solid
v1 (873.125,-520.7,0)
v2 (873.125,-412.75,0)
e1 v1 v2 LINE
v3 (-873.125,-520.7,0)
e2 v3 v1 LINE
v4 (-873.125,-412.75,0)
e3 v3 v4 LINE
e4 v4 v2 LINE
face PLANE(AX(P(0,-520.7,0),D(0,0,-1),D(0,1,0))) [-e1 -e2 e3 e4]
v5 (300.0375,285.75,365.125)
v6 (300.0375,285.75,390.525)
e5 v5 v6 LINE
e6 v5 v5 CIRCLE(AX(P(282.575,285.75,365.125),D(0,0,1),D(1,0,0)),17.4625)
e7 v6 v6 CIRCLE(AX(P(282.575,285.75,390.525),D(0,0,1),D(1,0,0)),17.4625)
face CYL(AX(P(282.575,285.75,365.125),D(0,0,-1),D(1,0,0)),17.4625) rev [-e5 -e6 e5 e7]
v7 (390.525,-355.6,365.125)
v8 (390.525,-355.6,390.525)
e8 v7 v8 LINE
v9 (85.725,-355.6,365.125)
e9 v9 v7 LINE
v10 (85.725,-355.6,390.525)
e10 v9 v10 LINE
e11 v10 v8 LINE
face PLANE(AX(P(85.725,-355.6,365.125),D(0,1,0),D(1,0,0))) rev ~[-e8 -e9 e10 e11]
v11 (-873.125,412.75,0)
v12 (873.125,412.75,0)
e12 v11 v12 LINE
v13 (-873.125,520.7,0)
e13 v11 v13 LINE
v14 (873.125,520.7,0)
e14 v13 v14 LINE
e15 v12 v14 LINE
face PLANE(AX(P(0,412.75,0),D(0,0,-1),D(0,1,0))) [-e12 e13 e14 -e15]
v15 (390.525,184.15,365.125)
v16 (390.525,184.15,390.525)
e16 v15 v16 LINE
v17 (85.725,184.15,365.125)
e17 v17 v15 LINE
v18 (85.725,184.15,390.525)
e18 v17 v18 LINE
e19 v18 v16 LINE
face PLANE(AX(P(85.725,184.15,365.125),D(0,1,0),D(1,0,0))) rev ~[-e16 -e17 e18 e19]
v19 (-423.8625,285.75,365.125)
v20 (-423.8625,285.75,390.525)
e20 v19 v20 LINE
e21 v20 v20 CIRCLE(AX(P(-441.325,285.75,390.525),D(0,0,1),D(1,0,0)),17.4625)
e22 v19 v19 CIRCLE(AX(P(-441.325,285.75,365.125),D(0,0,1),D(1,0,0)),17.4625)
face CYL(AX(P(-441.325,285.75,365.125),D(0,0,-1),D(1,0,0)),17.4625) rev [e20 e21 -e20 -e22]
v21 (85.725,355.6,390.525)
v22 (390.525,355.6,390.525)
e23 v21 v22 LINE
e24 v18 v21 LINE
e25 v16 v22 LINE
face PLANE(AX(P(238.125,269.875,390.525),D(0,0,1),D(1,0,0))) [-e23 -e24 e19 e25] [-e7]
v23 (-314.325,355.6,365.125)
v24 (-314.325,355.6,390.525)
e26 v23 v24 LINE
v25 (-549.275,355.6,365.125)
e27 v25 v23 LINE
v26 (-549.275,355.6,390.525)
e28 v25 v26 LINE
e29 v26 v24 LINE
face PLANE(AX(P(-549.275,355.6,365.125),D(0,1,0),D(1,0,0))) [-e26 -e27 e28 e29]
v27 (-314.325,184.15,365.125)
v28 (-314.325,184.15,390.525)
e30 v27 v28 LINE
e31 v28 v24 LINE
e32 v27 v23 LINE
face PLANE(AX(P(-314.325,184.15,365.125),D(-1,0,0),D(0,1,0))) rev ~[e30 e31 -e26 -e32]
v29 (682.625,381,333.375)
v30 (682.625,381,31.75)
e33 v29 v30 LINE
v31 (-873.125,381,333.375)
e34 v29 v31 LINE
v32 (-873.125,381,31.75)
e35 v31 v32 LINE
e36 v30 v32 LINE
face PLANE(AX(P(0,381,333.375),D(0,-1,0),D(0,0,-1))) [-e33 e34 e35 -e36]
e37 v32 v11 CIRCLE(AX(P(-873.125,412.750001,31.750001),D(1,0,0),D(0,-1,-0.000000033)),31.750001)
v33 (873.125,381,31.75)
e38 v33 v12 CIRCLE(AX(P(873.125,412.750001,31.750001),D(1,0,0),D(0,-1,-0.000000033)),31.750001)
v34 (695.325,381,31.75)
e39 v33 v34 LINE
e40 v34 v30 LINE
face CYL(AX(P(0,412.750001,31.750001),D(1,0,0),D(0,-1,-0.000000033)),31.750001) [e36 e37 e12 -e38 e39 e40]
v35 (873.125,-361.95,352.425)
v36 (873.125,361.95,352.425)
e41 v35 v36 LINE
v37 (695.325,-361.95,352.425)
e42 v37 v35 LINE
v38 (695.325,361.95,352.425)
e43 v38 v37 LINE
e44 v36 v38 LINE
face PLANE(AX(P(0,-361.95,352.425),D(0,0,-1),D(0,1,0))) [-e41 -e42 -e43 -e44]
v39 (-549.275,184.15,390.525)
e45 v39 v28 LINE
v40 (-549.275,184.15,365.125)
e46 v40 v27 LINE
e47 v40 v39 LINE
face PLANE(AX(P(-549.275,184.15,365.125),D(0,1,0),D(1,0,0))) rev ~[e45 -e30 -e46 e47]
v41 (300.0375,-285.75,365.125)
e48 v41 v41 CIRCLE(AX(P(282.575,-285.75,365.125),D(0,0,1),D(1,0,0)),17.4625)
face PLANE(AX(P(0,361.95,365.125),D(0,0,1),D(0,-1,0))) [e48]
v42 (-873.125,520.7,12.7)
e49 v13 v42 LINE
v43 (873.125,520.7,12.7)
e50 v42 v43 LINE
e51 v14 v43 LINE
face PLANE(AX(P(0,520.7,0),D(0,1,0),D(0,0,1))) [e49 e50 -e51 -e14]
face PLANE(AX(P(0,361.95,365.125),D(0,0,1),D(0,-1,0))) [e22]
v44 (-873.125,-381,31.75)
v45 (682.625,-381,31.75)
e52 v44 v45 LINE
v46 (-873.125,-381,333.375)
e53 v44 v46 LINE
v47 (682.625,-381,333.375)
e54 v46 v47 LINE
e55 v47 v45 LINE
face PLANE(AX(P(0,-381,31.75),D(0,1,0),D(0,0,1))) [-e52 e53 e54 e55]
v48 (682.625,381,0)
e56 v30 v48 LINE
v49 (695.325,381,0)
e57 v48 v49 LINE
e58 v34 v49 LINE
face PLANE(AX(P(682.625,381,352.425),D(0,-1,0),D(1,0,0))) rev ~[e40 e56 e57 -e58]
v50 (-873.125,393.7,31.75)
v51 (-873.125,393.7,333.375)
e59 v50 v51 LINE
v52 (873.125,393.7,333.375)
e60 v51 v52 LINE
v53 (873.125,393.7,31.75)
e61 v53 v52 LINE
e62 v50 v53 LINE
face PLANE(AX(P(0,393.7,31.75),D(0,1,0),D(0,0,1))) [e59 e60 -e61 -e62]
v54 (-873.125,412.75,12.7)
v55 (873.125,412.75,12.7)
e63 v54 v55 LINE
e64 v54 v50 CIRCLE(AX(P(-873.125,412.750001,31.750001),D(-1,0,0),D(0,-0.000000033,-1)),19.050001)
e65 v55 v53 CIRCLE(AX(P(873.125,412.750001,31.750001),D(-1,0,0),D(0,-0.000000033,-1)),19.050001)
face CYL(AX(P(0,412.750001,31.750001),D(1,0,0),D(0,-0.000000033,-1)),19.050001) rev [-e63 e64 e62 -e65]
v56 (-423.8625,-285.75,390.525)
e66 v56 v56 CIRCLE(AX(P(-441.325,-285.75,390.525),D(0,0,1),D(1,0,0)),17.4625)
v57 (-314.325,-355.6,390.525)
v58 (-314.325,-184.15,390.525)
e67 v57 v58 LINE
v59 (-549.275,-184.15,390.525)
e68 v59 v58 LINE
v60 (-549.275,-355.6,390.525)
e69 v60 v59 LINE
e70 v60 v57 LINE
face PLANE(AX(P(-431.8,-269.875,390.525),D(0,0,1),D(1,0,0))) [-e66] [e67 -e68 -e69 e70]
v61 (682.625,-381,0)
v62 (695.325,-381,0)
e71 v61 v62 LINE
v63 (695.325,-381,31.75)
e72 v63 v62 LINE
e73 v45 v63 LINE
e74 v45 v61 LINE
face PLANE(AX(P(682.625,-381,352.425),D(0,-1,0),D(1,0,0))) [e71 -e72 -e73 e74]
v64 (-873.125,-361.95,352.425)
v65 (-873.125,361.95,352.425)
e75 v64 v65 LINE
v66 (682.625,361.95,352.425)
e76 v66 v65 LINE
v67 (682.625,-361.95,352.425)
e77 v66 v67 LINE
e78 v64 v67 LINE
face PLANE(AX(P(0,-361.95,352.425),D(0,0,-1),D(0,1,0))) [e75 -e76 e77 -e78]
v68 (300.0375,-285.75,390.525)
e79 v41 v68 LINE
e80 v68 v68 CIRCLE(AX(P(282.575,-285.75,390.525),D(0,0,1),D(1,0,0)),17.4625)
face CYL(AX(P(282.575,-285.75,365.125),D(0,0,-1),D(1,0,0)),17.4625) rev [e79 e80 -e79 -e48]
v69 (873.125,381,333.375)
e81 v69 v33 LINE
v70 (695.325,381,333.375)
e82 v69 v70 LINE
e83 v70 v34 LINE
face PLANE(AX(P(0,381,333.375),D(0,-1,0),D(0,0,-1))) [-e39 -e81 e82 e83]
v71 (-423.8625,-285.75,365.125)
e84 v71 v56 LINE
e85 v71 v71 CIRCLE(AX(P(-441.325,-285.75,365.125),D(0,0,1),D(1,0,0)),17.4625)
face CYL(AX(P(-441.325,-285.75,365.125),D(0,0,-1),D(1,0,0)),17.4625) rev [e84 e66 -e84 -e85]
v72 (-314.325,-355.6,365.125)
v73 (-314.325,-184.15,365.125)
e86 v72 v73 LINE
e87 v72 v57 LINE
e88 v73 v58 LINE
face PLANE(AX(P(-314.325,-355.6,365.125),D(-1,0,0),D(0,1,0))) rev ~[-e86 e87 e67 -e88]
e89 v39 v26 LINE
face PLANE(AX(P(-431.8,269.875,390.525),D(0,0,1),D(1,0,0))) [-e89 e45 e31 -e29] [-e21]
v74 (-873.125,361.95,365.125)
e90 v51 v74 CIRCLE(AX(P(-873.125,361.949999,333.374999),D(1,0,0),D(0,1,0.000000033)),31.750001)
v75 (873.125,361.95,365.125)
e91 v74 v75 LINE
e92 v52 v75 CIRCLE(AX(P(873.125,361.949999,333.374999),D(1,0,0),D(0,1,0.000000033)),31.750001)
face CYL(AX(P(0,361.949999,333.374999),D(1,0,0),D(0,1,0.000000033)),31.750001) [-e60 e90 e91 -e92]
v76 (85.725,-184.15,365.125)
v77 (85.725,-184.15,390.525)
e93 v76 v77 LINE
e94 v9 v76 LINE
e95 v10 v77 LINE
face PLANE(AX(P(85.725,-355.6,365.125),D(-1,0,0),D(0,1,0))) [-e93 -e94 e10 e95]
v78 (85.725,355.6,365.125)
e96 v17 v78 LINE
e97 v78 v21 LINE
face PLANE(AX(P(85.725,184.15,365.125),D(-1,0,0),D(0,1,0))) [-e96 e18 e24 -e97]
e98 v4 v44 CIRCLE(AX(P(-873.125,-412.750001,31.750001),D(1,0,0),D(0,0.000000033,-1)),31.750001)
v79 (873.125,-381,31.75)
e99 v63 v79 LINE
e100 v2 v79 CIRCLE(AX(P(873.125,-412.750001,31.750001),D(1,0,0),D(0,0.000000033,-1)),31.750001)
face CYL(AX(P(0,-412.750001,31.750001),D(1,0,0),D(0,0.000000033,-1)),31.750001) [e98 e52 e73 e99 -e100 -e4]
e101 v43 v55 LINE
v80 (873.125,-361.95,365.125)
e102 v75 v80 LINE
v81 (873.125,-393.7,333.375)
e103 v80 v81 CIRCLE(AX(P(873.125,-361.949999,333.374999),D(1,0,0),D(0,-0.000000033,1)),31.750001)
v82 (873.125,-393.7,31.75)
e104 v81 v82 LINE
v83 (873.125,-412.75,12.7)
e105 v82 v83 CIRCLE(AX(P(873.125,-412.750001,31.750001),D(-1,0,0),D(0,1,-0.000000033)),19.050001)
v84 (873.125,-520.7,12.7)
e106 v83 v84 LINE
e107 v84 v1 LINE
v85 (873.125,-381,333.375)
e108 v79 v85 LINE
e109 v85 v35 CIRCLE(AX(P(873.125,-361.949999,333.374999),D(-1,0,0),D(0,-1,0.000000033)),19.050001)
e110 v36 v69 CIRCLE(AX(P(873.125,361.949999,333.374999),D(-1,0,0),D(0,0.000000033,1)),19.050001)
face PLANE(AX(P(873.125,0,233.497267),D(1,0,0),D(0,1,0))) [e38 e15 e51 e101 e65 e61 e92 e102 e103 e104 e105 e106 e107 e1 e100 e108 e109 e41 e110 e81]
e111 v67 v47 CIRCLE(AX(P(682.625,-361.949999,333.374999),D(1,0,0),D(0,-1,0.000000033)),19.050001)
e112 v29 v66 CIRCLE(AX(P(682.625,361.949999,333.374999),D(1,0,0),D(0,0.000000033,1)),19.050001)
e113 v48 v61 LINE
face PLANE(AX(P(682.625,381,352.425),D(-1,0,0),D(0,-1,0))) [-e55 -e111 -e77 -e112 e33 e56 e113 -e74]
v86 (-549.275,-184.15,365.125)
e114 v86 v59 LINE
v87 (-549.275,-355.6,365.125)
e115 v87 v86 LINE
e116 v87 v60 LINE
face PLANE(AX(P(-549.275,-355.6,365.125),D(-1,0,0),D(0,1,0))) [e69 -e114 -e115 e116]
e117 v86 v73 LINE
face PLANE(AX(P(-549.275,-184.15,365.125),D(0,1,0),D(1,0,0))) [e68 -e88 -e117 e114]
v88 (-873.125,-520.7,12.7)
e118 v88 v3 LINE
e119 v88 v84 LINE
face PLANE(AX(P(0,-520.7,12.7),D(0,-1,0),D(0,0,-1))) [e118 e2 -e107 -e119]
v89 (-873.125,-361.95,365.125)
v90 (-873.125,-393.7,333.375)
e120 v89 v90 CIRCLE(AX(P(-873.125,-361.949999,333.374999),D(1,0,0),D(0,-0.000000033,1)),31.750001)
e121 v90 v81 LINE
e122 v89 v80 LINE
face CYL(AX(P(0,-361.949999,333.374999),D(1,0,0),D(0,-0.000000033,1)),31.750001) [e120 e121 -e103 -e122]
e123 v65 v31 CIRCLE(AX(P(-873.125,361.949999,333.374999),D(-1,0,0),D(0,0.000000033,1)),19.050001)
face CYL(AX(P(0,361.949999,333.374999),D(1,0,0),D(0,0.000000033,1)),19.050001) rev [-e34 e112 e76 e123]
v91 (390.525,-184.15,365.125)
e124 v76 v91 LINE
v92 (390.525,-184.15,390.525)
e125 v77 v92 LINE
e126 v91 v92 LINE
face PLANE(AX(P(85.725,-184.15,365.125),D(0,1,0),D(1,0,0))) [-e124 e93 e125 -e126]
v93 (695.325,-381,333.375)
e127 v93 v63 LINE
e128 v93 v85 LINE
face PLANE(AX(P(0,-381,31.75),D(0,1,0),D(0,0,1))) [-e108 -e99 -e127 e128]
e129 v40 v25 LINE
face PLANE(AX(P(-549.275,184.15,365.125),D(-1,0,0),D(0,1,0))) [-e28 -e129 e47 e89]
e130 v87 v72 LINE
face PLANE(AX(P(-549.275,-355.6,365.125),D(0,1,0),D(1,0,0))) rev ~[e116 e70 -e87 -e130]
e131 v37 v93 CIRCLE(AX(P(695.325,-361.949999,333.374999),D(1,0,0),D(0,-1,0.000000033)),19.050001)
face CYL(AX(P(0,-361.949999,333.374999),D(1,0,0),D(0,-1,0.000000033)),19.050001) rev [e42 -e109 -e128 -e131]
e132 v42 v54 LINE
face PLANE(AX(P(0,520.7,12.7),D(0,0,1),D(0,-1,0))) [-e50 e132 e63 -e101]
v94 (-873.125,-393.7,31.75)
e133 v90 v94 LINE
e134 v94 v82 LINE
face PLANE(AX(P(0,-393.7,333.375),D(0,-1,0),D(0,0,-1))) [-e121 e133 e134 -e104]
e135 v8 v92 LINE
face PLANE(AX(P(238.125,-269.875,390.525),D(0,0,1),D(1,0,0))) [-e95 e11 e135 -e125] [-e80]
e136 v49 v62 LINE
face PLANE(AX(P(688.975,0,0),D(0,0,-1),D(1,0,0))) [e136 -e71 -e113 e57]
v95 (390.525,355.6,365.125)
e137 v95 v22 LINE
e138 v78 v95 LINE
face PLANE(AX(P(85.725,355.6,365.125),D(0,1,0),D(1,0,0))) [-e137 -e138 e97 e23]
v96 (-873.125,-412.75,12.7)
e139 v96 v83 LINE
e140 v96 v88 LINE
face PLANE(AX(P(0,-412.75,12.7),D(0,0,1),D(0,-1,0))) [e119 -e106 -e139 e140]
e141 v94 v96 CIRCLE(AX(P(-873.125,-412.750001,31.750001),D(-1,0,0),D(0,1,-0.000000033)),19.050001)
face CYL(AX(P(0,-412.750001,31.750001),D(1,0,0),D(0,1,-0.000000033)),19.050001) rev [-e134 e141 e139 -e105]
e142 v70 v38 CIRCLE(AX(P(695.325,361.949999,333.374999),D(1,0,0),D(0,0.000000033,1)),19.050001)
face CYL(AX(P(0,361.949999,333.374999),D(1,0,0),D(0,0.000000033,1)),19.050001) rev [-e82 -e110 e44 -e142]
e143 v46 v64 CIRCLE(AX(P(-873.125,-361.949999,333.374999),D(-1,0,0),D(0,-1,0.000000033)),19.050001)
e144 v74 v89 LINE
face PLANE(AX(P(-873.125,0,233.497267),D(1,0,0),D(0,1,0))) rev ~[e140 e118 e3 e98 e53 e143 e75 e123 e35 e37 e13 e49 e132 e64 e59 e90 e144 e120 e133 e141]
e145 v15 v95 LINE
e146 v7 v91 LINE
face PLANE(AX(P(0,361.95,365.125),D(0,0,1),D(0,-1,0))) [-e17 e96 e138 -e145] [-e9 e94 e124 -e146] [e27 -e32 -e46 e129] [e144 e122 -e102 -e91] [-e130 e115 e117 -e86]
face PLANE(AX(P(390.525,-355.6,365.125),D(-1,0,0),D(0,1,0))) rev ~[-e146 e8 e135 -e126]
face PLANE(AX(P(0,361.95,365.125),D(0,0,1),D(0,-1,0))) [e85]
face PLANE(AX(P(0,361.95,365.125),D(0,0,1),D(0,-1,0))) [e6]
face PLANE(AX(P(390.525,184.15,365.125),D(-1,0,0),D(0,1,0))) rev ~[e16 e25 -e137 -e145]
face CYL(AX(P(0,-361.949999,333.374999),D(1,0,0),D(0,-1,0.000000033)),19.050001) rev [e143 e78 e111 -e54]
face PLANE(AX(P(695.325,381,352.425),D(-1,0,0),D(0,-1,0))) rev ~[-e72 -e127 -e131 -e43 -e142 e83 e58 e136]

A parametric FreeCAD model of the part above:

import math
import FreeCAD as App
import Part
import Sketcher
Q = App.Units.Quantity

doc = App.newDocument("Part")
body = doc.addObject("PartDesign::Body", "Body")

sketch1 = body.newObject("Sketcher::SketchObject", "Sketch")
sketch1.AttachmentSupport = (doc.getObject("YZ_Plane"), [""])
sketch1.MapMode = "FlatFace"
sketch1.addGeometry([
    Part.ArcOfCircle(Part.Circle(App.Vector(413, 32, 0), App.Vector(0, 0, 1), 32), math.radians(-180), math.radians(-90)),
    Part.LineSegment(App.Vector(413, 0, 0), App.Vector(521, 0, 0)),
    Part.LineSegment(App.Vector(521, 0, 0), App.Vector(521, 13, 0)),
    Part.LineSegment(App.Vector(521, 13, 0), App.Vector(413, 13, 0)),
    Part.ArcOfCircle(Part.Circle(App.Vector(413, 32, 0), App.Vector(0, 0, 1), 19), math.radians(-180), math.radians(-90)),
    Part.LineSegment(App.Vector(394, 32, 0), App.Vector(394, 333, 0)),
    Part.ArcOfCircle(Part.Circle(App.Vector(362, 333, 0), App.Vector(0, 0, 1), 32), math.radians(0), math.radians(90)),
    Part.LineSegment(App.Vector(362, 365, 0), App.Vector(-362, 365, 0)),
    Part.ArcOfCircle(Part.Circle(App.Vector(-362, 333, 0), App.Vector(0, 0, 1), 32), math.radians(90), math.radians(180)),
    Part.LineSegment(App.Vector(-394, 333, 0), App.Vector(-394, 32, 0)),
    Part.ArcOfCircle(Part.Circle(App.Vector(-413, 32, 0), App.Vector(0, 0, 1), 19), math.radians(-90), math.radians(0)),
    Part.LineSegment(App.Vector(-413, 13, 0), App.Vector(-521, 13, 0)),
    Part.LineSegment(App.Vector(-521, 13, 0), App.Vector(-521, 0, 0)),
    Part.LineSegment(App.Vector(-521, 0, 0), App.Vector(-413, 0, 0)),
    Part.ArcOfCircle(Part.Circle(App.Vector(-413, 32, 0), App.Vector(0, 0, 1), 32), math.radians(-90), math.radians(0)),
    Part.LineSegment(App.Vector(-381, 32, 0), App.Vector(-381, 333, 0)),
    Part.ArcOfCircle(Part.Circle(App.Vector(-362, 333, 0), App.Vector(0, 0, 1), 19), math.radians(90), math.radians(180)),
    Part.LineSegment(App.Vector(-362, 352, 0), App.Vector(362, 352, 0)),
    Part.ArcOfCircle(Part.Circle(App.Vector(362, 333, 0), App.Vector(0, 0, 1), 19), math.radians(0), math.radians(90)),
    Part.LineSegment(App.Vector(381, 333, 0), App.Vector(381, 32, 0)),
], False)
sketch1.addConstraint([
    Sketcher.Constraint("Tangent", 0, 2, 1, 1),
    Sketcher.Constraint("Coincident", 1, 2, 2, 1),
    Sketcher.Constraint("Coincident", 2, 2, 3, 1),
    Sketcher.Constraint("Tangent", 3, 2, 4, 2),
    Sketcher.Constraint("Tangent", 4, 1, 5, 1),
    Sketcher.Constraint("Tangent", 5, 2, 6, 1),
    Sketcher.Constraint("Tangent", 6, 2, 7, 1),
    Sketcher.Constraint("Tangent", 7, 2, 8, 1),
    Sketcher.Constraint("Tangent", 8, 2, 9, 1),
    Sketcher.Constraint("Tangent", 9, 2, 10, 2),
    Sketcher.Constraint("Tangent", 10, 1, 11, 1),
    Sketcher.Constraint("Coincident", 11, 2, 12, 1),
    Sketcher.Constraint("Coincident", 12, 2, 13, 1),
    Sketcher.Constraint("Tangent", 13, 2, 14, 1),
    Sketcher.Constraint("Tangent", 14, 2, 15, 1),
    Sketcher.Constraint("Tangent", 15, 2, 16, 2),
    Sketcher.Constraint("Tangent", 16, 1, 17, 1),
    Sketcher.Constraint("Tangent", 17, 2, 18, 2),
    Sketcher.Constraint("Tangent", 18, 1, 19, 1),
    Sketcher.Constraint("Tangent", 19, 2, 0, 1),
    Sketcher.Constraint("Horizontal", 1),
    Sketcher.Constraint("Vertical", 2),
    Sketcher.Constraint("Horizontal", 3),
    Sketcher.Constraint("Vertical", 5),
    Sketcher.Constraint("Horizontal", 7),
    Sketcher.Constraint("Vertical", 9),
    Sketcher.Constraint("Horizontal", 11),
    Sketcher.Constraint("Vertical", 12),
    Sketcher.Constraint("Horizontal", 13),
    Sketcher.Constraint("Vertical", 15),
    Sketcher.Constraint("Horizontal", 17),
    Sketcher.Constraint("Vertical", 19),
    Sketcher.Constraint("Coincident", 4, 3, 0, 3),
    Sketcher.Constraint("Coincident", 14, 3, 10, 3),
    Sketcher.Constraint("Coincident", 16, 3, 8, 3),
    Sketcher.Constraint("Coincident", 18, 3, 6, 3),
    Sketcher.Constraint("Equal", 0, 6),
    Sketcher.Constraint("Equal", 6, 8),
    Sketcher.Constraint("Equal", 4, 10),
    Sketcher.Constraint("Symmetric", 1, 2, 12, 2, -1, 1),
    Sketcher.Constraint("Symmetric", 0, 3, 10, 3, -2),
    Sketcher.Constraint("Radius", 0, Q("1.25 in")),
    Sketcher.Constraint("Radius", 4, Q("0.75 in")),
    Sketcher.Constraint("DistanceX", 7, 2, 7, 1, Q("28.5 in")),
    Sketcher.Constraint("DistanceX", 4, 1, 2, 2, Q("5 in")),
    Sketcher.Constraint("DistanceY", 5, 1, 5, 2, Q("11.875 in")),
])
pad1 = body.newObject("PartDesign::Pad", "Pad")
pad1.Profile = sketch1
pad1.Length = Q("68.75 in")
pad1.Midplane = True

sketch2 = body.newObject("Sketcher::SketchObject", "Sketch001")
sketch2.AttachmentSupport = (doc.getObject("XY_Plane"), [""])
sketch2.MapMode = "FlatFace"
sketch2.AttachmentOffset = App.Placement(App.Vector(0, 0, 14.375 * 25.4), App.Rotation())
sketch2.addGeometry([
    Part.LineSegment(App.Vector(86, 356, 0), App.Vector(86, 184, 0)),
    Part.LineSegment(App.Vector(86, 184, 0), App.Vector(391, 184, 0)),
    Part.LineSegment(App.Vector(391, 184, 0), App.Vector(391, 356, 0)),
    Part.LineSegment(App.Vector(391, 356, 0), App.Vector(86, 356, 0)),
    Part.Circle(App.Vector(283, 286, 0), App.Vector(0, 0, 1), 17),
    Part.LineSegment(App.Vector(-549, 356, 0), App.Vector(-549, 184, 0)),
    Part.LineSegment(App.Vector(-549, 184, 0), App.Vector(-314, 184, 0)),
    Part.LineSegment(App.Vector(-314, 184, 0), App.Vector(-314, 356, 0)),
    Part.LineSegment(App.Vector(-314, 356, 0), App.Vector(-549, 356, 0)),
    Part.Circle(App.Vector(-441, 286, 0), App.Vector(0, 0, 1), 17),
    Part.LineSegment(App.Vector(86, -184, 0), App.Vector(86, -356, 0)),
    Part.LineSegment(App.Vector(86, -356, 0), App.Vector(391, -356, 0)),
    Part.LineSegment(App.Vector(391, -356, 0), App.Vector(391, -184, 0)),
    Part.LineSegment(App.Vector(391, -184, 0), App.Vector(86, -184, 0)),
    Part.Circle(App.Vector(283, -286, 0), App.Vector(0, 0, 1), 17),
    Part.LineSegment(App.Vector(-549, -184, 0), App.Vector(-549, -356, 0)),
    Part.LineSegment(App.Vector(-549, -356, 0), App.Vector(-314, -356, 0)),
    Part.LineSegment(App.Vector(-314, -356, 0), App.Vector(-314, -184, 0)),
    Part.LineSegment(App.Vector(-314, -184, 0), App.Vector(-549, -184, 0)),
    Part.Circle(App.Vector(-441, -286, 0), App.Vector(0, 0, 1), 17),
], False)
sketch2.addConstraint([
    Sketcher.Constraint("Coincident", 0, 2, 1, 1),
    Sketcher.Constraint("Coincident", 1, 2, 2, 1),
    Sketcher.Constraint("Coincident", 2, 2, 3, 1),
    Sketcher.Constraint("Coincident", 3, 2, 0, 1),
    Sketcher.Constraint("Coincident", 5, 2, 6, 1),
    Sketcher.Constraint("Coincident", 6, 2, 7, 1),
    Sketcher.Constraint("Coincident", 7, 2, 8, 1),
    Sketcher.Constraint("Coincident", 8, 2, 5, 1),
    Sketcher.Constraint("Coincident", 10, 2, 11, 1),
    Sketcher.Constraint("Coincident", 11, 2, 12, 1),
    Sketcher.Constraint("Coincident", 12, 2, 13, 1),
    Sketcher.Constraint("Coincident", 13, 2, 10, 1),
    Sketcher.Constraint("Coincident", 15, 2, 16, 1),
    Sketcher.Constraint("Coincident", 16, 2, 17, 1),
    Sketcher.Constraint("Coincident", 17, 2, 18, 1),
    Sketcher.Constraint("Coincident", 18, 2, 15, 1),
    Sketcher.Constraint("Vertical", 0),
    Sketcher.Constraint("Horizontal", 1),
    Sketcher.Constraint("Vertical", 2),
    Sketcher.Constraint("Horizontal", 3),
    Sketcher.Constraint("Vertical", 5),
    Sketcher.Constraint("Horizontal", 6),
    Sketcher.Constraint("Vertical", 7),
    Sketcher.Constraint("Horizontal", 8),
    Sketcher.Constraint("Vertical", 10),
    Sketcher.Constraint("Horizontal", 11),
    Sketcher.Constraint("Vertical", 12),
    Sketcher.Constraint("Horizontal", 13),
    Sketcher.Constraint("Vertical", 15),
    Sketcher.Constraint("Horizontal", 16),
    Sketcher.Constraint("Vertical", 17),
    Sketcher.Constraint("Horizontal", 18),
    Sketcher.Constraint("Equal", 4, 9),
    Sketcher.Constraint("Equal", 9, 14),
    Sketcher.Constraint("Equal", 14, 19),
    Sketcher.Constraint("Symmetric", 4, 3, 14, 3, -1),
    Sketcher.Constraint("Symmetric", 9, 3, 19, 3, -1),
    Sketcher.Constraint("Symmetric", 3, 2, 10, 2, -1),
    Sketcher.Constraint("Symmetric", 1, 2, 12, 2, -1),
    Sketcher.Constraint("Symmetric", 8, 2, 15, 2, -1),
    Sketcher.Constraint("Symmetric", 6, 2, 17, 2, -1),
    Sketcher.Constraint("Horizontal", 4, 3, 9, 3),
    Sketcher.Constraint("Horizontal", 1, 2, 5, 2),
    Sketcher.Constraint("Horizontal", 3, 2, 7, 2),
    Sketcher.Constraint("DistanceX", 1, 1, 1, 2, Q("12 in")),
    Sketcher.Constraint("Diameter", 4, Q("1.375 in")),
    Sketcher.Constraint("DistanceY", -1, 1, 2, 2, Q("14 in")),
    Sketcher.Constraint("DistanceY", 0, 2, 4, 3, Q("4 in")),
    Sketcher.Constraint("DistanceX", 5, 2, 0, 2, Q("25 in")),
    Sketcher.Constraint("DistanceX", 9, 3, 6, 2, Q("5 in")),
    Sketcher.Constraint("DistanceX", 6, 1, 6, 2, Q("9.25 in")),
    Sketcher.Constraint("DistanceY", 0, 2, 0, 1, Q("6.75 in")),
    Sketcher.Constraint("DistanceX", 9, 3, 4, 3, Q("28.5 in")),
    Sketcher.Constraint("DistanceX", -1, 1, 4, 3, Q("11.125 in")),
])
pad2 = body.newObject("PartDesign::Pad", "Pad001")
pad2.Profile = sketch2
pad2.Length = Q("1 in")

sketch3 = body.newObject("Sketcher::SketchObject", "Sketch002")
sketch3.AttachmentSupport = (doc.getObject("XY_Plane"), [""])
sketch3.MapMode = "FlatFace"
sketch3.AttachmentOffset = App.Placement(App.Vector(0, 0, 13.875 * 25.4), App.Rotation())
sketch3.addGeometry([
    Part.LineSegment(App.Vector(683, -381, 0), App.Vector(683, 381, 0)),
    Part.LineSegment(App.Vector(683, 381, 0), App.Vector(695, 381, 0)),
    Part.LineSegment(App.Vector(695, 381, 0), App.Vector(695, -381, 0)),
    Part.LineSegment(App.Vector(695, -381, 0), App.Vector(683, -381, 0)),
], False)
sketch3.addConstraint([
    Sketcher.Constraint("Coincident", 0, 2, 1, 1),
    Sketcher.Constraint("Coincident", 1, 2, 2, 1),
    Sketcher.Constraint("Coincident", 2, 2, 3, 1),
    Sketcher.Constraint("Coincident", 3, 2, 0, 1),
    Sketcher.Constraint("Vertical", 0),
    Sketcher.Constraint("Horizontal", 1),
    Sketcher.Constraint("Vertical", 2),
    Sketcher.Constraint("Horizontal", 3),
    Sketcher.Constraint("DistanceY", 0, 1, 0, 2, Q("30 in")),
    Sketcher.Constraint("DistanceX", 1, 1, 1, 2, Q("0.5 in")),
    Sketcher.Constraint("DistanceY", -1, 1, 0, 2, Q("15 in")),
    Sketcher.Constraint("DistanceX", -1, 1, 0, 2, Q("26.875 in")),
])
pad3 = body.newObject("PartDesign::Pad", "Pad002")
pad3.Profile = sketch3
pad3.Length = Q("13.875 in")
pad3.Reversed = True

doc.recompute()
